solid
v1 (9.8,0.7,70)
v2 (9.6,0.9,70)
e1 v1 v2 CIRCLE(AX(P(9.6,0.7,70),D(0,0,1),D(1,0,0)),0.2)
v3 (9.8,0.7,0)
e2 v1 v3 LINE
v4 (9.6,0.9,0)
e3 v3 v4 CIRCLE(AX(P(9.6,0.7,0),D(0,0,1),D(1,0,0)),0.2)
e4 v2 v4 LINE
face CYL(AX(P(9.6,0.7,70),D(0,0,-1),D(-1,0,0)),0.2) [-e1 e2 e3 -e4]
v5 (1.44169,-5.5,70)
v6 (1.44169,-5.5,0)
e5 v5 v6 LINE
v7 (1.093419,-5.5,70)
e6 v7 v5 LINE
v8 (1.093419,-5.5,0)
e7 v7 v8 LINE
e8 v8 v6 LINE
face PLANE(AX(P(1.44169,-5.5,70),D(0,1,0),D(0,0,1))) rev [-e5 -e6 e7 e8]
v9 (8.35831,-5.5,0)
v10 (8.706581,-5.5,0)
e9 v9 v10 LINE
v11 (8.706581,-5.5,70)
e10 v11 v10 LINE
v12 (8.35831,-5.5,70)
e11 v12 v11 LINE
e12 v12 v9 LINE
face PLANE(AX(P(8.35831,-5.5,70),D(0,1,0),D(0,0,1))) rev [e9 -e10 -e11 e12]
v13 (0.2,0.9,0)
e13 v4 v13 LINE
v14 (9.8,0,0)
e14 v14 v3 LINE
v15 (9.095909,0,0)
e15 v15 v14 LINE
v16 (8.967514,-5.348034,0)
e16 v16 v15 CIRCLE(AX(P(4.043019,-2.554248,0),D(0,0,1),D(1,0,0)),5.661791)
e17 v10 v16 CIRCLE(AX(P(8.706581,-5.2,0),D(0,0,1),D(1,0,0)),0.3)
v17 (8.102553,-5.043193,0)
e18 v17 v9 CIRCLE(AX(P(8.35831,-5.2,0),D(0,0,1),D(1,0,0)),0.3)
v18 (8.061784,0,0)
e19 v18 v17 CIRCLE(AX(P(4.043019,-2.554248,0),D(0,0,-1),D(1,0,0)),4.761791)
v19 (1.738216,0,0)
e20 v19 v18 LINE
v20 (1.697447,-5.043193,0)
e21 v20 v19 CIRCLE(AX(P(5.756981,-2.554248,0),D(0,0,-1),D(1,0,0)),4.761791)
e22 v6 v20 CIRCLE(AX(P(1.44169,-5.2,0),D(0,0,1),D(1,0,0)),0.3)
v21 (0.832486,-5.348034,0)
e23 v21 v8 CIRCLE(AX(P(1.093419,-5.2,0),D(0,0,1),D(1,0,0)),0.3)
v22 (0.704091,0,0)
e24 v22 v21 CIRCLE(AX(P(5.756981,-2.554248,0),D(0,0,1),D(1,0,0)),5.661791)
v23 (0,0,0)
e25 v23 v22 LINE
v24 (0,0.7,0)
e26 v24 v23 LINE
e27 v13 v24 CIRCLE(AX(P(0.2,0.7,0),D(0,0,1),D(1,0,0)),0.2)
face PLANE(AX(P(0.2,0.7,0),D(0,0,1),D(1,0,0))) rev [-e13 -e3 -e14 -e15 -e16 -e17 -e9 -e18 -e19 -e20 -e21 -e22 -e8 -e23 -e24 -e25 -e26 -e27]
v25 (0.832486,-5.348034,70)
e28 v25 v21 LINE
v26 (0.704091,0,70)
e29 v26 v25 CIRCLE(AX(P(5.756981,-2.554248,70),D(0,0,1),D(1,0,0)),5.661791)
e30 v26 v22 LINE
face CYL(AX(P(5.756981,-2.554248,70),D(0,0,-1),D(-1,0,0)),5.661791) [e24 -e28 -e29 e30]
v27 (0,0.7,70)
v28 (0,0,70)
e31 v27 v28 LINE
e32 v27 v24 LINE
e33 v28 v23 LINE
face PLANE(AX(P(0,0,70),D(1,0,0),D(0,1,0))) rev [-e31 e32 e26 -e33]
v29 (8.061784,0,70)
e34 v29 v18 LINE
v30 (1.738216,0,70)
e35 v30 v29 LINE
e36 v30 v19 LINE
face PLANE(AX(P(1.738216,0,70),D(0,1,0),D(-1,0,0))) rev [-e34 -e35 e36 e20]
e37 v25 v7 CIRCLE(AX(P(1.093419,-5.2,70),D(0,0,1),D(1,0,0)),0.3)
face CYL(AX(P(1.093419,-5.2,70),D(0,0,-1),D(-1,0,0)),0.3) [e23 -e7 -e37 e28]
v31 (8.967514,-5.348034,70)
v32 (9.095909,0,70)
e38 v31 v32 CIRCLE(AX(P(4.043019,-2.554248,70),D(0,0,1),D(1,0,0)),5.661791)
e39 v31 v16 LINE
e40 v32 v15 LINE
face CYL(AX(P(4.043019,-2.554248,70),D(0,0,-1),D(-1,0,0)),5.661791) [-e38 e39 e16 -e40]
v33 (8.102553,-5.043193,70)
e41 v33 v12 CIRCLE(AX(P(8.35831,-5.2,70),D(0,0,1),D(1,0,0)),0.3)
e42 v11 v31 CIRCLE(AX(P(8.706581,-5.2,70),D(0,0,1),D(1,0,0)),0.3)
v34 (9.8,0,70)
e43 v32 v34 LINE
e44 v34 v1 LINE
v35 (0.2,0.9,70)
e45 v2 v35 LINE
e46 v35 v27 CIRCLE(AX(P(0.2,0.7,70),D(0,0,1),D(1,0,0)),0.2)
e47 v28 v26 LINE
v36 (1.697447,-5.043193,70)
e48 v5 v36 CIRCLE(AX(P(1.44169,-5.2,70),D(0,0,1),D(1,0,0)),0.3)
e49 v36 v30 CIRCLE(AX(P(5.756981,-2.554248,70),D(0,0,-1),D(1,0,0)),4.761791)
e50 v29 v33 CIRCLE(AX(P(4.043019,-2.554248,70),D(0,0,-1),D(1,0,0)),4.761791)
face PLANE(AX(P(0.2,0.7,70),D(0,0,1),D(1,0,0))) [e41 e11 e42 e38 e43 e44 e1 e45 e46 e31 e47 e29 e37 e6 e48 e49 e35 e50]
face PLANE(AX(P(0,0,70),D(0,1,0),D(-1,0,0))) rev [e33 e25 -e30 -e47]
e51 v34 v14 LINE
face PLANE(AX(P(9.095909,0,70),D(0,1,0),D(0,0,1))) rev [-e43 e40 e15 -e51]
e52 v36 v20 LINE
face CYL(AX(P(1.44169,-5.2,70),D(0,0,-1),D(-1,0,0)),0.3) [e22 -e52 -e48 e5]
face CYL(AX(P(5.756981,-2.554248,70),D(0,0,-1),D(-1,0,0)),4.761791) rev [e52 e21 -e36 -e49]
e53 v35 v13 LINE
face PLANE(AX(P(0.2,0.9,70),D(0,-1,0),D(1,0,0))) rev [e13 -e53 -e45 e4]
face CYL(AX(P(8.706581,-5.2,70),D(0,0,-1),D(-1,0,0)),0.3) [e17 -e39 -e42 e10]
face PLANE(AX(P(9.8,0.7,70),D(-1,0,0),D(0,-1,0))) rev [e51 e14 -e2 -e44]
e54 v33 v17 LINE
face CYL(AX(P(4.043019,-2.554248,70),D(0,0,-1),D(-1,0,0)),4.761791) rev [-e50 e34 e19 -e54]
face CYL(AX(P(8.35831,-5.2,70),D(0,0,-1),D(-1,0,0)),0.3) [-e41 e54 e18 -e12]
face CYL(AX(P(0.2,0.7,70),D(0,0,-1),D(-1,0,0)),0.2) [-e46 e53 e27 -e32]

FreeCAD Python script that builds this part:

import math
import FreeCAD as App
import Part
import Sketcher
Q = App.Units.Quantity

doc = App.newDocument("Part")
body = doc.addObject("PartDesign::Body", "Body")

sketch1 = body.newObject("Sketcher::SketchObject", "Sketch")
sketch1.AttachmentSupport = (doc.getObject("XY_Plane"), [""])
sketch1.MapMode = "FlatFace"
sketch1.addGeometry([
    Part.LineSegment(App.Vector(9.6, 0.9, 0), App.Vector(0.2, 0.9, 0)),
    Part.ArcOfCircle(Part.Circle(App.Vector(0.2, 0.7, 0), App.Vector(0, 0, 1), 0.2), math.radians(90), math.radians(180)),
    Part.LineSegment(App.Vector(0, 0.7, 0), App.Vector(0, 0, 0)),
    Part.LineSegment(App.Vector(0, 0, 0), App.Vector(0.704091, 0, 0)),
    Part.ArcOfCircle(Part.Circle(App.Vector(5.756981, -2.554248, 0), App.Vector(0, 0, 1), 5.661791), math.radians(153.18329), math.radians(209.567294)),
    Part.ArcOfCircle(Part.Circle(App.Vector(1.093419, -5.2, 0), App.Vector(0, 0, 1), 0.3), math.radians(-150.432706), math.radians(-90)),
    Part.LineSegment(App.Vector(1.093419, -5.5, 0), App.Vector(1.44169, -5.5, 0)),
    Part.ArcOfCircle(Part.Circle(App.Vector(1.44169, -5.2, 0), App.Vector(0, 0, 1), 0.3), math.radians(-90), math.radians(31.512916)),
    Part.ArcOfCircle(Part.Circle(App.Vector(5.756981, -2.554248, 0), App.Vector(0, 0, 1), 4.761791), math.radians(147.56076), math.radians(211.512916)),
    Part.LineSegment(App.Vector(1.738216, 0, 0), App.Vector(8.061784, 0, 0)),
    Part.ArcOfCircle(Part.Circle(App.Vector(4.043019, -2.554248, 0), App.Vector(0, 0, 1), 4.761791), math.radians(-31.512916), math.radians(32.43924)),
    Part.ArcOfCircle(Part.Circle(App.Vector(8.35831, -5.2, 0), App.Vector(0, 0, 1), 0.3), math.radians(148.487084), math.radians(270)),
    Part.LineSegment(App.Vector(8.35831, -5.5, 0), App.Vector(8.706581, -5.5, 0)),
    Part.ArcOfCircle(Part.Circle(App.Vector(8.706581, -5.2, 0), App.Vector(0, 0, 1), 0.3), math.radians(-90), math.radians(-29.567294)),
    Part.ArcOfCircle(Part.Circle(App.Vector(4.043019, -2.554248, 0), App.Vector(0, 0, 1), 5.661791), math.radians(-29.567294), math.radians(26.81671)),
    Part.LineSegment(App.Vector(9.095909, 0, 0), App.Vector(9.8, 0, 0)),
    Part.LineSegment(App.Vector(9.8, 0, 0), App.Vector(9.8, 0.7, 0)),
    Part.ArcOfCircle(Part.Circle(App.Vector(9.6, 0.7, 0), App.Vector(0, 0, 1), 0.2), math.radians(0), math.radians(90)),
], False)
sketch1.addConstraint([
    Sketcher.Constraint("Tangent", 0, 2, 1, 1),
    Sketcher.Constraint("Tangent", 1, 2, 2, 1),
    Sketcher.Constraint("Coincident", 2, 2, 3, 1),
    Sketcher.Constraint("Coincident", 3, 2, 4, 1),
    Sketcher.Constraint("Tangent", 4, 2, 5, 1),
    Sketcher.Constraint("Tangent", 5, 2, 6, 1),
    Sketcher.Constraint("Tangent", 6, 2, 7, 1),
    Sketcher.Constraint("Tangent", 7, 2, 8, 2),
    Sketcher.Constraint("Coincident", 8, 1, 9, 1),
    Sketcher.Constraint("Coincident", 9, 2, 10, 2),
    Sketcher.Constraint("Tangent", 10, 1, 11, 1),
    Sketcher.Constraint("Tangent", 11, 2, 12, 1),
    Sketcher.Constraint("Tangent", 12, 2, 13, 1),
    Sketcher.Constraint("Tangent", 13, 2, 14, 1),
    Sketcher.Constraint("Coincident", 14, 2, 15, 1),
    Sketcher.Constraint("Coincident", 15, 2, 16, 1),
    Sketcher.Constraint("Tangent", 16, 2, 17, 1),
    Sketcher.Constraint("Tangent", 17, 2, 0, 1),
    Sketcher.Constraint("Horizontal", 0),
    Sketcher.Constraint("Vertical", 2),
    Sketcher.Constraint("Horizontal", 3),
    Sketcher.Constraint("Horizontal", 6),
    Sketcher.Constraint("Horizontal", 9),
    Sketcher.Constraint("Horizontal", 12),
    Sketcher.Constraint("Horizontal", 15),
    Sketcher.Constraint("Vertical", 16),
    Sketcher.Constraint("Coincident", 2, 2, -1, 1),
    Sketcher.Constraint("Coincident", 8, 3, 4, 3),
    Sketcher.Constraint("Coincident", 14, 3, 10, 3),
    Sketcher.Constraint("Equal", 5, 7),
    Sketcher.Constraint("Equal", 8, 10),
    Sketcher.Constraint("Equal", 7, 11),
    Sketcher.Constraint("Equal", 11, 13),
    Sketcher.Constraint("Equal", 4, 14),
    Sketcher.Constraint("Equal", 1, 17),
    Sketcher.Constraint("PointOnObject", 8, 1, -1),
    Sketcher.Constraint("PointOnObject", 14, 2, -1),
    Sketcher.Constraint("Horizontal", 8, 3, 10, 3),
    Sketcher.Constraint("Horizontal", 7, 3, 11, 3),
    Sketcher.Constraint("Equal", 3, 15),
    Sketcher.Constraint("Radius", 1, Q("0.2 mm")),
    Sketcher.Constraint("Radius", 5, Q("0.3 mm")),
    Sketcher.Constraint("DistanceX", 0, 2, 0, 1, Q("9.4 mm")),
    Sketcher.Constraint("DistanceY", 2, 2, 2, 1, Q("0.7 mm")),
    Sketcher.Constraint("DistanceY", 5, 3, -1, 1, Q("5.2 mm")),
    Sketcher.Constraint("Radius", 4, Q("5.661791 mm")),
    Sketcher.Constraint("Radius", 8, Q("4.761791 mm")),
    Sketcher.Constraint("DistanceX", 3, 1, 3, 2, Q("0.704091 mm")),
    Sketcher.Constraint("DistanceX", 6, 1, 6, 2, Q("0.348271 mm")),
])
pad1 = body.newObject("PartDesign::Pad", "Pad")
pad1.Profile = sketch1
pad1.Length = 70

doc.recompute()
